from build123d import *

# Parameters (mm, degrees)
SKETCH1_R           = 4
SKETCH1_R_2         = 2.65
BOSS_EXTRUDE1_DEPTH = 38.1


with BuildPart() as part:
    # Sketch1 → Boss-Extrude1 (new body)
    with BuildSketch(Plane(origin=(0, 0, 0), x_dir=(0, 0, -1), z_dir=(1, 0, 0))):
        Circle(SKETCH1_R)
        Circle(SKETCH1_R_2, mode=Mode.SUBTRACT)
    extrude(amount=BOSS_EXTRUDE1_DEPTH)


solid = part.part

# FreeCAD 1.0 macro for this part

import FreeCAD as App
import Part
import Sketcher

doc = App.newDocument("Part")
body = doc.addObject("PartDesign::Body", "Body")

# Sketch on YZ plane
sketch1 = doc.addObject("Sketcher::SketchObject", "Sketch")
body.addObject(sketch1)
sketch1.AttachmentSupport = (doc.YZ_Plane, [""])
sketch1.MapMode = "FlatFace"
sketch1.addGeometry(Part.Circle(App.Vector(0, 0, 0), App.Vector(0, 0, 1), 4), False)
sketch1.addGeometry(Part.Circle(App.Vector(0, 0, 0), App.Vector(0, 0, 1), 2.65), False)
sketch1.addConstraint(Sketcher.Constraint("Coincident", 0, 3, -1, 1))
sketch1.addConstraint(Sketcher.Constraint("Coincident", 1, 3, -1, 1))
sketch1.addConstraint(Sketcher.Constraint("Diameter", 0, 8.0))
sketch1.addConstraint(Sketcher.Constraint("Diameter", 1, 5.3))
pad1 = doc.addObject("PartDesign::Pad", "Pad")
body.addObject(pad1)
pad1.Profile = sketch1
pad1.Length = 38.1

doc.recompute()
